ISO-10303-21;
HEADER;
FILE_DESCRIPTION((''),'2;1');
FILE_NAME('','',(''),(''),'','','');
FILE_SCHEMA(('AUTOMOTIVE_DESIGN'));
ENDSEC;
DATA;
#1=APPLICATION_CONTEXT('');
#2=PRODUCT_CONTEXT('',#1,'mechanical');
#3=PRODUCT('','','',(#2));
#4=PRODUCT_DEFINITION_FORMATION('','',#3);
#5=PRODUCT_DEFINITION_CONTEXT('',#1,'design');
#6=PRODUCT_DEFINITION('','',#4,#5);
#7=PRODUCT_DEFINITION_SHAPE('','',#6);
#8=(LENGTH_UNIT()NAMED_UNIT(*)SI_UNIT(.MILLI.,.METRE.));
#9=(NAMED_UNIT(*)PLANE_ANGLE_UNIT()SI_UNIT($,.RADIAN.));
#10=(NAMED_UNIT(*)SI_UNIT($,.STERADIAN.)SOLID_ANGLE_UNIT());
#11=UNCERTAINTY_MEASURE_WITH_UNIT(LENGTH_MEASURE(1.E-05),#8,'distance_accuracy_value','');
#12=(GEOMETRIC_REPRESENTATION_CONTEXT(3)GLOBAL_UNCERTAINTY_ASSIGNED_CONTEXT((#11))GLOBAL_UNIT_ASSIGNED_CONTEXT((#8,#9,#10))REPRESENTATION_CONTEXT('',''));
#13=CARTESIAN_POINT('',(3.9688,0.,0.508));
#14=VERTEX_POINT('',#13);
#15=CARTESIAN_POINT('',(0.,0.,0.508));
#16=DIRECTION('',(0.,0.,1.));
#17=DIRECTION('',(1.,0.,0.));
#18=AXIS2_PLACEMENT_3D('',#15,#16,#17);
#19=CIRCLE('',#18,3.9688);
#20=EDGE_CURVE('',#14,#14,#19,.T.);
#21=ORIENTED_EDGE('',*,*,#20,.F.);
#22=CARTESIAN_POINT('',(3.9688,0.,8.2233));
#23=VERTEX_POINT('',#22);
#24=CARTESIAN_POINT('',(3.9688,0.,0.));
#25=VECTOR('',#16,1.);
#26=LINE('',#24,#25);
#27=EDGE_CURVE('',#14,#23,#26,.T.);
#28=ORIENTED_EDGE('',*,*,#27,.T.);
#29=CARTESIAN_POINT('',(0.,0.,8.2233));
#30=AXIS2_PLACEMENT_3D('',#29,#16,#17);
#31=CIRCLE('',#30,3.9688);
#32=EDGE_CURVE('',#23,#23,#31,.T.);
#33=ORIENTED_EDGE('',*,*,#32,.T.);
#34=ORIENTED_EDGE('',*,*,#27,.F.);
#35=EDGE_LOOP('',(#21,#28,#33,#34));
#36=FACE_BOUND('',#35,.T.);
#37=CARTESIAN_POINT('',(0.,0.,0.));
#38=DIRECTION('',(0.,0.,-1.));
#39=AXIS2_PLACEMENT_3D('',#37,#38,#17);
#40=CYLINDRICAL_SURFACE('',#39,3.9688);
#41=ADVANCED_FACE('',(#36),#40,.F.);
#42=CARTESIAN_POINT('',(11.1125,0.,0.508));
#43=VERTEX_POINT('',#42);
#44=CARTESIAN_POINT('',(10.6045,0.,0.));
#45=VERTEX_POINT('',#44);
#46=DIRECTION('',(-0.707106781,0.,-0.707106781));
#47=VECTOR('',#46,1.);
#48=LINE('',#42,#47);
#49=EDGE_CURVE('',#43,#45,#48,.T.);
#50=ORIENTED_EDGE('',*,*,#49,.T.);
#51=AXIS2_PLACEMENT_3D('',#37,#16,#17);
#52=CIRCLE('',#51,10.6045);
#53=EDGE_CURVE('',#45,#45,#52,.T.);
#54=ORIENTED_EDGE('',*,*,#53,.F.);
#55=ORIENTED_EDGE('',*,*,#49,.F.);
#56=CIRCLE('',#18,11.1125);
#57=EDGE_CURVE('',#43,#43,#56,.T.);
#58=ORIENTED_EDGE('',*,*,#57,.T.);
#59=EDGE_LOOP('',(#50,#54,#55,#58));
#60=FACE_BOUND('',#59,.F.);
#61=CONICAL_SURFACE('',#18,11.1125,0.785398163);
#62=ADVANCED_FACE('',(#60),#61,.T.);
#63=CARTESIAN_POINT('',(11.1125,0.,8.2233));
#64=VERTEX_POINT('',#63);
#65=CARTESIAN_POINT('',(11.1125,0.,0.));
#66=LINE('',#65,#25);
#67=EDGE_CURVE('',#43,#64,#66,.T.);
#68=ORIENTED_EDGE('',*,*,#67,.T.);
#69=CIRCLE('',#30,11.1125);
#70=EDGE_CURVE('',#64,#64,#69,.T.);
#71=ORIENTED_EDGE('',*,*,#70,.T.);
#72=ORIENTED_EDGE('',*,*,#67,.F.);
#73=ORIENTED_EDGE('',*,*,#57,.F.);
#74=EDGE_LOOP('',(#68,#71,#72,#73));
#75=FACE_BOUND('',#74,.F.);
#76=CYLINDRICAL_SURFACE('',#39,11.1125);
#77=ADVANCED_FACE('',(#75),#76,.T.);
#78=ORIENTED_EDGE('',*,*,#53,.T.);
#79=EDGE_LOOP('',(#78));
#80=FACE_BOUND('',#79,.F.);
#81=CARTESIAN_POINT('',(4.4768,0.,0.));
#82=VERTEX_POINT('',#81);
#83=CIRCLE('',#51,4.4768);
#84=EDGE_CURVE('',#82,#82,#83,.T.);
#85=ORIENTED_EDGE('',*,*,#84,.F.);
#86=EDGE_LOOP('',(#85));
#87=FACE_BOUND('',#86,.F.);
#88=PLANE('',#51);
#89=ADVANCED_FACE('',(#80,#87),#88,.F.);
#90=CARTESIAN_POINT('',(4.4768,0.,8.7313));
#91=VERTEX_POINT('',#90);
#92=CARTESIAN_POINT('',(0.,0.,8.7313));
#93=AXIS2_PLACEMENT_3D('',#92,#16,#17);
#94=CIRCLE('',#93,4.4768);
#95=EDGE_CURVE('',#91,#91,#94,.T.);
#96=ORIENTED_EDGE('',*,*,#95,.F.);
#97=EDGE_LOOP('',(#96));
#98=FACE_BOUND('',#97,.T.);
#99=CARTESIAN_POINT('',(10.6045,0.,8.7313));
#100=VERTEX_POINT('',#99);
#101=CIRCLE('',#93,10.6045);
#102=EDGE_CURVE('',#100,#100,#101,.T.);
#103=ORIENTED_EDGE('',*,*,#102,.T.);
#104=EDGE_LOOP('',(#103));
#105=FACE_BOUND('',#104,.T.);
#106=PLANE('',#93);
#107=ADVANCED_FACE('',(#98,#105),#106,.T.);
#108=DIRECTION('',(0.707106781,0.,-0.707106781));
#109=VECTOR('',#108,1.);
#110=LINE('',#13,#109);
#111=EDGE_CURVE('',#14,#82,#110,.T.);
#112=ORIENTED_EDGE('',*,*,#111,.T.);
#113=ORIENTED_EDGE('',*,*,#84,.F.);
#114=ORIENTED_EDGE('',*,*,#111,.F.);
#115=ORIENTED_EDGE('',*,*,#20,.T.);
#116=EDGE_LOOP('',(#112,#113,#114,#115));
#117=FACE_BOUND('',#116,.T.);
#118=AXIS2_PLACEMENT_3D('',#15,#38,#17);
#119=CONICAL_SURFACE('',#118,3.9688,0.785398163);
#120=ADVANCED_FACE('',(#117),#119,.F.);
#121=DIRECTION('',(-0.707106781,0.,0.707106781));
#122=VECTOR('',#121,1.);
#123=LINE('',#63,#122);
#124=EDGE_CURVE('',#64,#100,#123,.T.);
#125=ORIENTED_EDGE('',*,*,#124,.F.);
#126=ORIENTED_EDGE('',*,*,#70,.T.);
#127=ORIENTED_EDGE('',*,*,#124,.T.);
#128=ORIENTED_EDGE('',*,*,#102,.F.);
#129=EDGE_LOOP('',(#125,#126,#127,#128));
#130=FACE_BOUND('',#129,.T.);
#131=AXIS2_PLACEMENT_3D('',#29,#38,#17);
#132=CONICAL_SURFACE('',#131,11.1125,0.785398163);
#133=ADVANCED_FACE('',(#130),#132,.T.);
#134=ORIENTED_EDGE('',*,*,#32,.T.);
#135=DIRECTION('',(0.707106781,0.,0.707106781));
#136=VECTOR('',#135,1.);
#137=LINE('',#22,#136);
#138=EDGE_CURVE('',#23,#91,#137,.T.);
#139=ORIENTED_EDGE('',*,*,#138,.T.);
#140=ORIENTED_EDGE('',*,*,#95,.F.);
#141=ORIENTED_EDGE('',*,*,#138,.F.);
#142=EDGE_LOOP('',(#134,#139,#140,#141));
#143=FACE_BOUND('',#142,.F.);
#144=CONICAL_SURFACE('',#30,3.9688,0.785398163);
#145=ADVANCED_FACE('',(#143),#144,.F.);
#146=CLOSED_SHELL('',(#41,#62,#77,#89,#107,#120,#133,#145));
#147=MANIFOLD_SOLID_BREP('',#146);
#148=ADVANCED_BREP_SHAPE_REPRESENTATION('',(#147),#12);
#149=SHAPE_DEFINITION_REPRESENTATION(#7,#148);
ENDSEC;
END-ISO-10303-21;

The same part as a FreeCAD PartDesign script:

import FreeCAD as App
import Part
import Sketcher
Q = App.Units.Quantity


def edges_at(feature, points):
    """Names of the edges that pass closest to the given points."""
    edges = feature.Shape.Edges
    near = lambda p: min(range(len(edges)), key=lambda i: edges[i].distToShape(Part.Vertex(*p))[0])
    return sorted({f"Edge{near(p) + 1}" for p in points})

doc = App.newDocument("Part")
body = doc.addObject("PartDesign::Body", "Body")

# Sketch on XY plane
sketch1 = doc.addObject("Sketcher::SketchObject", "Sketch")
body.addObject(sketch1)
sketch1.AttachmentSupport = (doc.XY_Plane, [""])
sketch1.MapMode = "FlatFace"
sketch1.addGeometry([
    Part.Circle(App.Vector(0, 0, 0), App.Vector(0, 0, 1), 11.1),
    Part.Circle(App.Vector(0, 0, 0), App.Vector(0, 0, 1), 4),
], False)
sketch1.addConstraint([
    Sketcher.Constraint("Coincident", 0, 3, -1, 1),
    Sketcher.Constraint("Coincident", 1, 3, -1, 1),
    Sketcher.Constraint("Diameter", 0, Q("0.875 in")),
    Sketcher.Constraint("Diameter", 1, Q("0.3125 in")),
])
pad1 = doc.addObject("PartDesign::Pad", "Pad")
body.addObject(pad1)
pad1.Profile = sketch1
pad1.Length = Q("0.343752 in")
doc.recompute()

chamfer = doc.addObject("PartDesign::Chamfer", "Chamfer")
body.addObject(chamfer)
chamfer.Base = (pad1, edges_at(pad1, [
    (-11.113, 0, 8.731),
    (-3.969, 0, 8.731),
    (-3.969, 0, 0),
    (-11.113, 0, 0),
]))
chamfer.Size = Q("0.02 in")

doc.recompute()
